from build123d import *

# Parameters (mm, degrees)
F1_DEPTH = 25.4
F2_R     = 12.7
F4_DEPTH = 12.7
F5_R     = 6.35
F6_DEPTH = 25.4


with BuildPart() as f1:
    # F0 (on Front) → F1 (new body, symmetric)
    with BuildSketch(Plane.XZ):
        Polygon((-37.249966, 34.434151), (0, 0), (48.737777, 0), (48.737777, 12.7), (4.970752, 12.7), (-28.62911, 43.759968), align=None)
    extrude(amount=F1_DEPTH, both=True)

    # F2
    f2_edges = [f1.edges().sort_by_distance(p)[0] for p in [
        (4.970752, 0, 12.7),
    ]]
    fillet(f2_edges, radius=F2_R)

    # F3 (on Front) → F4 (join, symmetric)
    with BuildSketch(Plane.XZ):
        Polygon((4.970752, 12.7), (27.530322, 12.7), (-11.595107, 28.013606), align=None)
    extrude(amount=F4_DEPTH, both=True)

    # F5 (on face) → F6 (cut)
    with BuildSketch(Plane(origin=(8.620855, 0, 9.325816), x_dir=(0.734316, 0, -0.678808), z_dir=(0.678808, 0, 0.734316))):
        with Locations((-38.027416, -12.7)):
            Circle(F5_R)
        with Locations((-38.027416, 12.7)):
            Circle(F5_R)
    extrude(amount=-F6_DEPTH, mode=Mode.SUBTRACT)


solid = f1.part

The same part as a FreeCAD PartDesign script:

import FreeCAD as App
import Part
import Sketcher
from FreeCAD import Vector
Q = App.Units.Quantity


def edges_at(feature, points):
    """Names of the edges that pass closest to the given points."""
    edges = feature.Shape.Edges
    near = lambda p: min(range(len(edges)), key=lambda i: edges[i].distToShape(Part.Vertex(*p))[0])
    return sorted({f"Edge{near(p) + 1}" for p in points})

doc = App.newDocument("Part")
body = doc.addObject("PartDesign::Body", "Body")

sketch1 = doc.addObject("Sketcher::SketchObject", "Sketch")
body.addObject(sketch1)
sketch1.AttachmentSupport = (doc.XZ_Plane, [""])
sketch1.MapMode = "FlatFace"
sketch1.addGeometry([
    Part.LineSegment(Vector(-37.249966, 34.434151, 0), Vector(0, 0, 0)),
    Part.LineSegment(Vector(0, 0, 0), Vector(48.737777, 0, 0)),
    Part.LineSegment(Vector(48.737777, 0, 0), Vector(48.737777, 12.7, 0)),
    Part.LineSegment(Vector(48.737777, 12.7, 0), Vector(4.970752, 12.7, 0)),
    Part.LineSegment(Vector(4.970752, 12.7, 0), Vector(-28.62911, 43.759968, 0)),
    Part.LineSegment(Vector(-28.62911, 43.759968, 0), Vector(-37.249966, 34.434151, 0)),
], False)
sketch1.addConstraint([
    Sketcher.Constraint("Coincident", 0, 2, 1, 1),
    Sketcher.Constraint("Coincident", 1, 2, 2, 1),
    Sketcher.Constraint("Coincident", 2, 2, 3, 1),
    Sketcher.Constraint("Coincident", 3, 2, 4, 1),
    Sketcher.Constraint("Coincident", 4, 2, 5, 1),
    Sketcher.Constraint("Coincident", 5, 2, 0, 1),
    Sketcher.Constraint("Horizontal", 1),
    Sketcher.Constraint("Vertical", 2),
    Sketcher.Constraint("Horizontal", 3),
    Sketcher.Constraint("Coincident", 0, 2, -1, 1),
    Sketcher.Constraint("Parallel", 0, 4),
    Sketcher.Constraint("Perpendicular", 4, 5),
    Sketcher.Constraint("DistanceY", 2, 1, 2, 2, Q("0.5 in")),
    Sketcher.Constraint("Distance", 5, Q("0.5 in")),
    Sketcher.Constraint("DistanceX", 1, 1, 1, 2, Q("48.737777 mm")),
    Sketcher.Constraint("DistanceX", 3, 2, 3, 1, Q("43.767025 mm")),
    Sketcher.Constraint("DistanceX", 4, 2, -1, 1, Q("28.62911 mm")),
])
pad1 = doc.addObject("PartDesign::Pad", "Pad")
body.addObject(pad1)
pad1.Profile = sketch1
pad1.Length = Q("2 in")
pad1.Midplane = True
doc.recompute()

fillet = doc.addObject("PartDesign::Fillet", "Fillet")
body.addObject(fillet)
fillet.Base = (pad1, edges_at(pad1, [(4.971, 0, 12.7)]))
fillet.Radius = Q("0.5 in")

sketch2 = doc.addObject("Sketcher::SketchObject", "Sketch001")
body.addObject(sketch2)
sketch2.AttachmentSupport = (doc.XZ_Plane, [""])
sketch2.MapMode = "FlatFace"
sketch2.addGeometry([
    Part.LineSegment(Vector(4.970752, 12.7, 0), Vector(27.530322, 12.7, 0)),
    Part.LineSegment(Vector(27.530322, 12.7, 0), Vector(-11.595107, 28.013606, 0)),
    Part.LineSegment(Vector(-11.595107, 28.013606, 0), Vector(4.970752, 12.7, 0)),
], False)
sketch2.addConstraint([
    Sketcher.Constraint("Coincident", 0, 2, 1, 1),
    Sketcher.Constraint("Coincident", 1, 2, 2, 1),
    Sketcher.Constraint("Coincident", 2, 2, 0, 1),
    Sketcher.Constraint("Horizontal", 0),
    Sketcher.Constraint("DistanceY", -1, 1, 0, 2, Q("0.5 in")),
    Sketcher.Constraint("DistanceX", 0, 1, 0, 2, Q("22.55957 mm")),
    Sketcher.Constraint("Distance", 1, Q("42.015541 mm")),
    Sketcher.Constraint("Distance", 2, Q("22.55957 mm")),
    Sketcher.Constraint("DistanceX", -1, 1, 0, 2, Q("27.530322 mm")),
])
pad2 = doc.addObject("PartDesign::Pad", "Pad001")
body.addObject(pad2)
pad2.Profile = sketch2
pad2.Length = Q("1 in")
pad2.Midplane = True

sketch3 = doc.addObject("Sketcher::SketchObject", "Sketch002")
body.addObject(sketch3)
sketch3.Placement = App.Placement(Vector(8.620855, 0, 9.325816), App.Rotation(Vector(0.734315894, 0, -0.678807902), Vector(0, 1, 0), Vector(0.678807902, 0, 0.734315894), "ZXY"))
sketch3.addGeometry([
    Part.Circle(Vector(-38.027416, -12.7, 0), Vector(0, 0, 1), 6.35),
    Part.Circle(Vector(-38.027416, 12.7, 0), Vector(0, 0, 1), 6.35),
], False)
sketch3.addConstraint([
    Sketcher.Constraint("Equal", 0, 1),
    Sketcher.Constraint("Symmetric", 0, 3, 1, 3, -1),
    Sketcher.Constraint("Diameter", 0, Q("0.5 in")),
    Sketcher.Constraint("DistanceY", 0, 3, 1, 3, Q("1 in")),
    Sketcher.Constraint("DistanceX", 0, 3, -1, 1, Q("38.027416 mm")),
])
pocket1 = doc.addObject("PartDesign::Pocket", "Pocket")
body.addObject(pocket1)
pocket1.Profile = sketch3
pocket1.Length = Q("1 in")

doc.recompute()
